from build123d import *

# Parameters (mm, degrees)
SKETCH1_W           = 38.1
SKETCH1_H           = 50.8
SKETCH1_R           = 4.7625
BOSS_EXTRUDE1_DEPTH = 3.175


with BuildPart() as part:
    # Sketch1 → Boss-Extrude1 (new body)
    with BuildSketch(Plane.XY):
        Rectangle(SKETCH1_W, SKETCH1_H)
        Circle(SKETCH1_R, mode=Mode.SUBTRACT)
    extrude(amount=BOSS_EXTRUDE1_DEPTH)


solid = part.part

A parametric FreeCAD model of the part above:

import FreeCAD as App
import Part
import Sketcher

V = App.Vector
Q = App.Units.Quantity


def add_polygon(sketch, points):
    """Adds a closed chain of lines whose ends are joined by coincident constraints."""
    first, n = sketch.GeometryCount, len(points)
    for a, b in zip(points, points[1:] + points[:1]):
        sketch.addGeometry(Part.LineSegment(App.Vector(*a, 0), App.Vector(*b, 0)), False)
    for i in range(n):
        sketch.addConstraint(Sketcher.Constraint("Coincident", first + i, 2, first + (i + 1) % n, 1))

doc = App.newDocument("Part")
params = doc.addObject("Spreadsheet::Sheet", "Params")
for row, (alias, value) in enumerate([
    ("sketch1_height", "2 in"),
    ("sketch1_diameter", "0.375 in"),
    ("sketch1_width", "1.5 in"),
    ("pad1_length", "0.125 in"),
], start=1):
    params.set(f"A{row}", alias)
    params.set(f"B{row}", "=" + value)
    params.setAlias(f"B{row}", alias)

body = doc.addObject("PartDesign::Body", "Body")

# Sketch on XY plane
sketch1 = body.newObject("Sketcher::SketchObject", "Sketch")
sketch1.AttachmentSupport = (doc.getObject("XY_Plane"), [""])
sketch1.MapMode = "FlatFace"
add_polygon(sketch1, [(-19.1, 25.4), (-19.1, -25.4), (19.1, -25.4), (19.1, 25.4)])  # lines 0-3
sketch1.addGeometry(Part.Circle(V(0, 0, 0), V(0, 0, 1), 4.8), False)  # 4
sketch1.addConstraint([
    Sketcher.Constraint("Vertical", 0),
    Sketcher.Constraint("Horizontal", 1),
    Sketcher.Constraint("Vertical", 2),
    Sketcher.Constraint("Horizontal", 3),
    Sketcher.Constraint("Coincident", 4, 3, -1, 1),
    Sketcher.Constraint("Symmetric", 0, 2, 2, 2, -1, 1),
    Sketcher.Constraint("DistanceY", 0, 2, 0, 1, Q("2 in")),
    Sketcher.Constraint("Diameter", 4, Q("0.375 in")),
    Sketcher.Constraint("DistanceX", 1, 1, 1, 2, Q("1.5 in")),
])
sketch1.setExpression("Constraints[10]", "Params.sketch1_height")
sketch1.setExpression("Constraints[11]", "Params.sketch1_diameter")
sketch1.setExpression("Constraints[12]", "Params.sketch1_width")
pad1 = body.newObject("PartDesign::Pad", "Pad")
pad1.Profile = sketch1
pad1.setExpression("Length", "Params.pad1_length")

doc.recompute()
